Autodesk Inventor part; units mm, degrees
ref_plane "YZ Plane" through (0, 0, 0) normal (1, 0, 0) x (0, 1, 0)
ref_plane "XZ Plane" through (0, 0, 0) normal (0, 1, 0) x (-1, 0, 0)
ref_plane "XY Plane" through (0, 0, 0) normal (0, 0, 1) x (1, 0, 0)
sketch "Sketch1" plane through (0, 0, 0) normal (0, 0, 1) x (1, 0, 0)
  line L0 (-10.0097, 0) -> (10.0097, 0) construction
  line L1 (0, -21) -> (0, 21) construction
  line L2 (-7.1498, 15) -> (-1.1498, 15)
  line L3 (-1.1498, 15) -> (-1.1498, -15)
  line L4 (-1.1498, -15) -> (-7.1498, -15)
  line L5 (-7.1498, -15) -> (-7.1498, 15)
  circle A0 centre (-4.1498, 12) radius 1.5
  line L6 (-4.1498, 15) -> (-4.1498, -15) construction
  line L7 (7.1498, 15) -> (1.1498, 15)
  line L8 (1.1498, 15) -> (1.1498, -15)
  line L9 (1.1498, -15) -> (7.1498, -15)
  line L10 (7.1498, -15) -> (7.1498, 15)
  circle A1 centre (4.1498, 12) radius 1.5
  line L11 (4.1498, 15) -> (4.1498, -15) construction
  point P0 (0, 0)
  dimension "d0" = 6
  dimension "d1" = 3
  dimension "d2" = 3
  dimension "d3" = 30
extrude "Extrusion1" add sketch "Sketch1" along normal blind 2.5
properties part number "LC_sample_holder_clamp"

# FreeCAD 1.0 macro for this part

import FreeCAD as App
import Part
import Sketcher
Q = App.Units.Quantity

doc = App.newDocument("Part")
body = doc.addObject("PartDesign::Body", "Body")
body.AllowCompound = True

sketch1 = doc.addObject("Sketcher::SketchObject", "Sketch")
body.addObject(sketch1)
sketch1.AttachmentSupport = (doc.XY_Plane, [""])
sketch1.MapMode = "FlatFace"
sketch1.addGeometry([
    Part.LineSegment(App.Vector(-1.1, 15, 0), App.Vector(-7.1, 15, 0)),
    Part.LineSegment(App.Vector(-7.1, 15, 0), App.Vector(-7.1, -15, 0)),
    Part.LineSegment(App.Vector(-7.1, -15, 0), App.Vector(-1.1, -15, 0)),
    Part.LineSegment(App.Vector(-1.1, -15, 0), App.Vector(-1.1, 15, 0)),
    Part.Circle(App.Vector(-4.1, 12, 0), App.Vector(0, 0, 1), 1.5),
    Part.LineSegment(App.Vector(7.1, -15, 0), App.Vector(7.1, 15, 0)),
    Part.LineSegment(App.Vector(7.1, 15, 0), App.Vector(1.1, 15, 0)),
    Part.LineSegment(App.Vector(1.1, 15, 0), App.Vector(1.1, -15, 0)),
    Part.LineSegment(App.Vector(1.1, -15, 0), App.Vector(7.1, -15, 0)),
    Part.Circle(App.Vector(4.1, 12, 0), App.Vector(0, 0, 1), 1.5),
], False)
sketch1.addConstraint([
    Sketcher.Constraint("Coincident", 0, 2, 1, 1),
    Sketcher.Constraint("Coincident", 1, 2, 2, 1),
    Sketcher.Constraint("Coincident", 2, 2, 3, 1),
    Sketcher.Constraint("Coincident", 3, 2, 0, 1),
    Sketcher.Constraint("Coincident", 5, 2, 6, 1),
    Sketcher.Constraint("Coincident", 6, 2, 7, 1),
    Sketcher.Constraint("Coincident", 7, 2, 8, 1),
    Sketcher.Constraint("Coincident", 8, 2, 5, 1),
    Sketcher.Constraint("Horizontal", 0),
    Sketcher.Constraint("Vertical", 1),
    Sketcher.Constraint("Horizontal", 2),
    Sketcher.Constraint("Vertical", 3),
    Sketcher.Constraint("Vertical", 5),
    Sketcher.Constraint("Horizontal", 6),
    Sketcher.Constraint("Vertical", 7),
    Sketcher.Constraint("Horizontal", 8),
    Sketcher.Constraint("Equal", 4, 9),
    Sketcher.Constraint("Symmetric", 1, 2, 5, 2, -1, 1),
    Sketcher.Constraint("Symmetric", 3, 2, 7, 2, -1, 1),
    Sketcher.Constraint("Symmetric", 4, 3, 9, 3, -2),
    Sketcher.Constraint("Horizontal", 3, 2, 5, 2),
    Sketcher.Constraint("Diameter", 4, Q("3 mm")),
    Sketcher.Constraint("DistanceX", 0, 2, 0, 1, Q("6 mm")),
    Sketcher.Constraint("DistanceY", 1, 2, 1, 1, Q("30 mm")),
    Sketcher.Constraint("DistanceX", 0, 2, 4, 3, Q("3 mm")),
    Sketcher.Constraint("DistanceY", 4, 3, 0, 2, Q("3 mm")),
    Sketcher.Constraint("DistanceX", 4, 3, -1, 1, Q("4.1498 mm")),
])
pad1 = doc.addObject("PartDesign::Pad", "Pad")
body.addObject(pad1)
pad1.Profile = sketch1
pad1.Length = 2.5

doc.recompute()
